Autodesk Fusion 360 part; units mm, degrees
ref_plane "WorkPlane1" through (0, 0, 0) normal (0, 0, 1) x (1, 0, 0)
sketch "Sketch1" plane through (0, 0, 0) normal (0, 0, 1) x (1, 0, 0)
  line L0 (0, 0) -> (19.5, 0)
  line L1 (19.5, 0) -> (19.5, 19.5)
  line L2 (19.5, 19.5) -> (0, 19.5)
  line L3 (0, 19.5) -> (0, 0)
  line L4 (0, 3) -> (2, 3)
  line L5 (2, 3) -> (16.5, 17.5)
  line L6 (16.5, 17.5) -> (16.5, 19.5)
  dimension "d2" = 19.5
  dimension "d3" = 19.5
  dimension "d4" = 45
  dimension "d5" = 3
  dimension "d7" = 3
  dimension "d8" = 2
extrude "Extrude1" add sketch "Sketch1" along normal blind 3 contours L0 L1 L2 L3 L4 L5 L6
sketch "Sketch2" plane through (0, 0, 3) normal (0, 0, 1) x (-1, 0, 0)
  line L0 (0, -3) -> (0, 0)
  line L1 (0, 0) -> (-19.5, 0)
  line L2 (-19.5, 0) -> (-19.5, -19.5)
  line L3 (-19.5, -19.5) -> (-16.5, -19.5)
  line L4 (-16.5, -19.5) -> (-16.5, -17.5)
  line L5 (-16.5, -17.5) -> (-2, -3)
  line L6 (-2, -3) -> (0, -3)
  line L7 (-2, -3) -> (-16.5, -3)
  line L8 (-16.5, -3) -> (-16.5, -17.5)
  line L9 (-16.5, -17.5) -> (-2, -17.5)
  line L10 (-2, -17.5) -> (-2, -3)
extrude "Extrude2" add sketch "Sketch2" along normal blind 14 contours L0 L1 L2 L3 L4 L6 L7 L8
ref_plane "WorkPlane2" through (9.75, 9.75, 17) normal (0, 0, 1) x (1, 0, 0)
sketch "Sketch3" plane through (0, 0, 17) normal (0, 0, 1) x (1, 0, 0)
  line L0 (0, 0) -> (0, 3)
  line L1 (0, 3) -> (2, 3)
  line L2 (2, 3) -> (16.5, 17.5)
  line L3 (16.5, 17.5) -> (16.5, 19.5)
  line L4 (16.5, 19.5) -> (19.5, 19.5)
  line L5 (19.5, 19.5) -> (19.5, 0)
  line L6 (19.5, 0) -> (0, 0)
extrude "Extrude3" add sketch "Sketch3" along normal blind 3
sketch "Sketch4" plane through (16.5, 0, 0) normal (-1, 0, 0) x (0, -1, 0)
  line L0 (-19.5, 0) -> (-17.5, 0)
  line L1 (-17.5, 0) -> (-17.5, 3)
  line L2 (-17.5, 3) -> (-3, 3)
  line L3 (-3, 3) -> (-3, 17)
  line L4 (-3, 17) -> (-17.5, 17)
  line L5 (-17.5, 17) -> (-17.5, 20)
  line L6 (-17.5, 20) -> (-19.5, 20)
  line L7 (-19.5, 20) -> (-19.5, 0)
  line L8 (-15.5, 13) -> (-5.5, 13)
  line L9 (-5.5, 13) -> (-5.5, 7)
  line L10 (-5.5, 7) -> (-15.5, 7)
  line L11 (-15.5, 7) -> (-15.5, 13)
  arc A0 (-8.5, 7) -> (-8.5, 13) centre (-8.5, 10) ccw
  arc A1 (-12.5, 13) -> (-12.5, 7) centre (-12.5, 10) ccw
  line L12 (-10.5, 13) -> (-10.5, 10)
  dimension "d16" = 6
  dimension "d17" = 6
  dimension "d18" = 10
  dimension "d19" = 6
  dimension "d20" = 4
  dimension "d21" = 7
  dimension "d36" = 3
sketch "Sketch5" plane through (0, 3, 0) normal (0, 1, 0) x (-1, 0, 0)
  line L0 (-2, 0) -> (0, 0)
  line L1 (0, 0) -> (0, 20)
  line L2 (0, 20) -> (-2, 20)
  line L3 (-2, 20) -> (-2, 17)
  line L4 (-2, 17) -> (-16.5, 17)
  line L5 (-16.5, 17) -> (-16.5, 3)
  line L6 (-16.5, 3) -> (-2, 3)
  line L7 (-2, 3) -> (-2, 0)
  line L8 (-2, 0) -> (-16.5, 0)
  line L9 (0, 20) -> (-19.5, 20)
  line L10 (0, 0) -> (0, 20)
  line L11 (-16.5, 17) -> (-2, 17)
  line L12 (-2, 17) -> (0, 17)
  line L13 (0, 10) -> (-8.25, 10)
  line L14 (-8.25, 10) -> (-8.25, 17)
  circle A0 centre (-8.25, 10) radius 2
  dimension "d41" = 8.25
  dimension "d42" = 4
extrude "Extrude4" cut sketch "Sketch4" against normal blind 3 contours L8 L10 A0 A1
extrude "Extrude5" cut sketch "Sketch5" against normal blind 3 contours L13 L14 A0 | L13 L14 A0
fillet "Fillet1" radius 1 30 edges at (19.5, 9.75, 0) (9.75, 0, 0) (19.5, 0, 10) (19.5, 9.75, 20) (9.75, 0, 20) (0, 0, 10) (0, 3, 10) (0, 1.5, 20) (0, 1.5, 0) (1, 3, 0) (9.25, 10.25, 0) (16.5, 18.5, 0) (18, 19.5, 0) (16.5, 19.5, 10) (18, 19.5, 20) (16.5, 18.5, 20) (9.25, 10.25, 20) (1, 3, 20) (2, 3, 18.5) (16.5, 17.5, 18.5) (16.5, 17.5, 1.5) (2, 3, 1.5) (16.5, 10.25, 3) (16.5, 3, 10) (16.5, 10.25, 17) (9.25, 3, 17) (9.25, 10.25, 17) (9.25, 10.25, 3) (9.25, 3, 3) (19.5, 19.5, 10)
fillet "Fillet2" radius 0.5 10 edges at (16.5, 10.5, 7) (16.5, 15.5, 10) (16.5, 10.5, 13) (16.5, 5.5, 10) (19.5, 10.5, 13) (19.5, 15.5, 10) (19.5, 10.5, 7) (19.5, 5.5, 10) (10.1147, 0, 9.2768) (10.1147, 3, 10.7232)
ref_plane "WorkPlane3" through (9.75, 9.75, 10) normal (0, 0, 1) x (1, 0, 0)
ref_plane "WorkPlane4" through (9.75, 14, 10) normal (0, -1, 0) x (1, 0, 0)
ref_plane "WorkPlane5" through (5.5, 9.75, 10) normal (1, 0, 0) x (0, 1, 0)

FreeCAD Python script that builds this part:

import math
import FreeCAD as App
import Part
import Sketcher

V = App.Vector


def edges_at(feature, points):
    """Names of the edges that pass closest to the given points."""
    edges = feature.Shape.Edges
    near = lambda p: min(range(len(edges)), key=lambda i: edges[i].distToShape(Part.Vertex(*p))[0])
    return sorted({f"Edge{near(p) + 1}" for p in points})

doc = App.newDocument("Part")
body = doc.addObject("PartDesign::Body", "Body")

sketch1 = doc.addObject("Sketcher::SketchObject", "Sketch")
body.addObject(sketch1)
sketch1.AttachmentSupport = (doc.XY_Plane, [""])
sketch1.MapMode = "FlatFace"
sketch1.addGeometry([
    Part.LineSegment(V(0, 3, 0), V(0, 0, 0)),
    Part.LineSegment(V(0, 0, 0), V(19.5, 0, 0)),
    Part.LineSegment(V(19.5, 0, 0), V(19.5, 19.5, 0)),
    Part.LineSegment(V(19.5, 19.5, 0), V(16.5, 19.5, 0)),
    Part.LineSegment(V(16.5, 19.5, 0), V(16.5, 17.5, 0)),
    Part.LineSegment(V(16.5, 17.5, 0), V(2, 3, 0)),
    Part.LineSegment(V(2, 3, 0), V(0, 3, 0)),
], False)
sketch1.addConstraint([
    Sketcher.Constraint("Coincident", 0, 2, 1, 1),
    Sketcher.Constraint("Coincident", 1, 2, 2, 1),
    Sketcher.Constraint("Coincident", 2, 2, 3, 1),
    Sketcher.Constraint("Coincident", 3, 2, 4, 1),
    Sketcher.Constraint("Coincident", 4, 2, 5, 1),
    Sketcher.Constraint("Coincident", 5, 2, 6, 1),
    Sketcher.Constraint("Coincident", 6, 2, 0, 1),
    Sketcher.Constraint("Vertical", 0),
    Sketcher.Constraint("Horizontal", 1),
    Sketcher.Constraint("Vertical", 2),
    Sketcher.Constraint("Horizontal", 3),
    Sketcher.Constraint("Vertical", 4),
    Sketcher.Constraint("Horizontal", 6),
    Sketcher.Constraint("Coincident", 0, 2, -1, 1),
    Sketcher.Constraint("Equal", 3, 0),
    Sketcher.Constraint("Equal", 1, 2),
    Sketcher.Constraint("Equal", 6, 4),
    Sketcher.Constraint("DistanceX", 3, 2, 3, 1, 3.0),
    Sketcher.Constraint("DistanceX", 6, 2, 6, 1, 2.0),
    Sketcher.Constraint("DistanceX", 1, 1, 1, 2, 19.5),
])
pad1 = doc.addObject("PartDesign::Pad", "Pad")
body.addObject(pad1)
pad1.Profile = sketch1
pad1.Length = 3

sketch2 = doc.addObject("Sketcher::SketchObject", "Sketch001")
body.addObject(sketch2)
sketch2.AttachmentSupport = (doc.XY_Plane, [""])
sketch2.MapMode = "FlatFace"
sketch2.AttachmentOffset = App.Placement(V(0, 0, 3), App.Rotation())
sketch2.addGeometry([
    Part.LineSegment(V(16.5, 3, 0), V(0, 3, 0)),
    Part.LineSegment(V(0, 3, 0), V(0, 0, 0)),
    Part.LineSegment(V(0, 0, 0), V(19.5, 0, 0)),
    Part.LineSegment(V(19.5, 0, 0), V(19.5, 19.5, 0)),
    Part.LineSegment(V(19.5, 19.5, 0), V(16.5, 19.5, 0)),
    Part.LineSegment(V(16.5, 19.5, 0), V(16.5, 3, 0)),
], False)
sketch2.addConstraint([
    Sketcher.Constraint("Coincident", 0, 2, 1, 1),
    Sketcher.Constraint("Coincident", 1, 2, 2, 1),
    Sketcher.Constraint("Coincident", 2, 2, 3, 1),
    Sketcher.Constraint("Coincident", 3, 2, 4, 1),
    Sketcher.Constraint("Coincident", 4, 2, 5, 1),
    Sketcher.Constraint("Coincident", 5, 2, 0, 1),
    Sketcher.Constraint("Horizontal", 0),
    Sketcher.Constraint("Vertical", 1),
    Sketcher.Constraint("Horizontal", 2),
    Sketcher.Constraint("Vertical", 3),
    Sketcher.Constraint("Horizontal", 4),
    Sketcher.Constraint("Vertical", 5),
    Sketcher.Constraint("Coincident", 1, 2, -1, 1),
    Sketcher.Constraint("Equal", 4, 1),
    Sketcher.Constraint("Equal", 2, 3),
    Sketcher.Constraint("DistanceX", 4, 2, 4, 1, 3.0),
    Sketcher.Constraint("DistanceX", 0, 2, 0, 1, 16.5),
])
pad2 = doc.addObject("PartDesign::Pad", "Pad001")
body.addObject(pad2)
pad2.Profile = sketch2
pad2.Length = 14

sketch3 = doc.addObject("Sketcher::SketchObject", "Sketch002")
body.addObject(sketch3)
sketch3.AttachmentSupport = (doc.XY_Plane, [""])
sketch3.MapMode = "FlatFace"
sketch3.AttachmentOffset = App.Placement(V(0, 0, 17), App.Rotation())
sketch3.addGeometry([
    Part.LineSegment(V(0, 3, 0), V(0, 0, 0)),
    Part.LineSegment(V(0, 0, 0), V(19.5, 0, 0)),
    Part.LineSegment(V(19.5, 0, 0), V(19.5, 19.5, 0)),
    Part.LineSegment(V(19.5, 19.5, 0), V(16.5, 19.5, 0)),
    Part.LineSegment(V(16.5, 19.5, 0), V(16.5, 17.5, 0)),
    Part.LineSegment(V(16.5, 17.5, 0), V(2, 3, 0)),
    Part.LineSegment(V(2, 3, 0), V(0, 3, 0)),
], False)
sketch3.addConstraint([
    Sketcher.Constraint("Coincident", 0, 2, 1, 1),
    Sketcher.Constraint("Coincident", 1, 2, 2, 1),
    Sketcher.Constraint("Coincident", 2, 2, 3, 1),
    Sketcher.Constraint("Coincident", 3, 2, 4, 1),
    Sketcher.Constraint("Coincident", 4, 2, 5, 1),
    Sketcher.Constraint("Coincident", 5, 2, 6, 1),
    Sketcher.Constraint("Coincident", 6, 2, 0, 1),
    Sketcher.Constraint("Vertical", 0),
    Sketcher.Constraint("Horizontal", 1),
    Sketcher.Constraint("Vertical", 2),
    Sketcher.Constraint("Horizontal", 3),
    Sketcher.Constraint("Vertical", 4),
    Sketcher.Constraint("Horizontal", 6),
    Sketcher.Constraint("Coincident", 0, 2, -1, 1),
    Sketcher.Constraint("Equal", 3, 0),
    Sketcher.Constraint("Equal", 1, 2),
    Sketcher.Constraint("Equal", 6, 4),
    Sketcher.Constraint("DistanceX", 3, 2, 3, 1, 3.0),
    Sketcher.Constraint("DistanceX", 6, 2, 6, 1, 2.0),
    Sketcher.Constraint("DistanceX", 1, 1, 1, 2, 19.5),
])
pad3 = doc.addObject("PartDesign::Pad", "Pad002")
body.addObject(pad3)
pad3.Profile = sketch3
pad3.Length = 3

sketch4 = doc.addObject("Sketcher::SketchObject", "Sketch003")
body.addObject(sketch4)
sketch4.AttachmentSupport = (doc.YZ_Plane, [""])
sketch4.MapMode = "FlatFace"
sketch4.AttachmentOffset = App.Placement(V(0, 0, 16.5), App.Rotation())
sketch4.addGeometry([
    Part.LineSegment(V(8.5, 13, 0), V(12.5, 13, 0)),
    Part.ArcOfCircle(Part.Circle(V(12.5, 10, 0), V(0, 0, 1), 3), math.radians(-90), math.radians(90)),
    Part.LineSegment(V(12.5, 7, 0), V(8.5, 7, 0)),
    Part.ArcOfCircle(Part.Circle(V(8.5, 10, 0), V(0, 0, 1), 3), math.radians(90), math.radians(270)),
], False)
sketch4.addConstraint([
    Sketcher.Constraint("Tangent", 0, 2, 1, 2),
    Sketcher.Constraint("Tangent", 1, 1, 2, 1),
    Sketcher.Constraint("Tangent", 2, 2, 3, 2),
    Sketcher.Constraint("Tangent", 3, 1, 0, 1),
    Sketcher.Constraint("Horizontal", 0),
    Sketcher.Constraint("Horizontal", 2),
    Sketcher.Constraint("Radius", 1, 3.0),
    Sketcher.Constraint("DistanceX", 0, 1, 0, 2, 4.0),
    Sketcher.Constraint("DistanceY", -1, 1, 1, 3, 10.0),
    Sketcher.Constraint("DistanceX", -1, 1, 1, 3, 12.5),
])
pocket1 = doc.addObject("PartDesign::Pocket", "Pocket")
body.addObject(pocket1)
pocket1.Profile = sketch4
pocket1.Length = 3
pocket1.Reversed = True

sketch5 = doc.addObject("Sketcher::SketchObject", "Sketch004")
body.addObject(sketch5)
sketch5.AttachmentSupport = (doc.XZ_Plane, [""])
sketch5.MapMode = "FlatFace"
sketch5.AttachmentOffset = App.Placement(V(0, 0, -3), App.Rotation())
sketch5.addGeometry(Part.Circle(V(8.2, 10, 0), V(0, 0, 1), 2), False)
sketch5.addConstraint([
    Sketcher.Constraint("Diameter", 0, 4.0),
    Sketcher.Constraint("DistanceX", -1, 1, 0, 3, 8.25),
    Sketcher.Constraint("DistanceY", -1, 1, 0, 3, 10.0),
])
pocket2 = doc.addObject("PartDesign::Pocket", "Pocket001")
body.addObject(pocket2)
pocket2.Profile = sketch5
pocket2.Length = 3
pocket2.Reversed = True
doc.recompute()

fillet = doc.addObject("PartDesign::Fillet", "Fillet")
body.addObject(fillet)
fillet.Base = (pocket2, edges_at(pocket2, [
    (19.5, 9.75, 0),
    (9.75, 0, 0),
    (19.5, 0, 10),
    (19.5, 9.75, 20),
    (9.75, 0, 20),
    (0, 0, 10),
    (0, 3, 10),
    (0, 1.5, 20),
    (0, 1.5, 0),
    (1, 3, 0),
    (9.25, 10.25, 0),
    (16.5, 18.5, 0),
    (18, 19.5, 0),
    (16.5, 19.5, 10),
    (18, 19.5, 20),
    (16.5, 18.5, 20),
    (9.25, 10.25, 20),
    (1, 3, 20),
    (2, 3, 18.5),
    (16.5, 17.5, 18.5),
    (16.5, 17.5, 1.5),
    (2, 3, 1.5),
    (16.5, 10.25, 3),
    (16.5, 3, 10),
    (16.5, 10.25, 17),
    (9.25, 3, 17),
    (9.25, 10.25, 17),
    (9.25, 10.25, 3),
    (9.25, 3, 3),
    (19.5, 19.5, 10),
]))
fillet.Radius = 1
doc.recompute()

fillet2 = doc.addObject("PartDesign::Fillet", "Fillet001")
body.addObject(fillet2)
fillet2.Base = (fillet, edges_at(fillet, [
    (16.5, 10.5, 7),
    (16.5, 15.5, 10),
    (16.5, 10.5, 13),
    (16.5, 5.5, 10),
    (19.5, 10.5, 13),
    (19.5, 15.5, 10),
    (19.5, 10.5, 7),
    (19.5, 5.5, 10),
    (10.115, 0, 9.277),
    (10.115, 3, 10.723),
]))
fillet2.Radius = 0.5

doc.recompute()
